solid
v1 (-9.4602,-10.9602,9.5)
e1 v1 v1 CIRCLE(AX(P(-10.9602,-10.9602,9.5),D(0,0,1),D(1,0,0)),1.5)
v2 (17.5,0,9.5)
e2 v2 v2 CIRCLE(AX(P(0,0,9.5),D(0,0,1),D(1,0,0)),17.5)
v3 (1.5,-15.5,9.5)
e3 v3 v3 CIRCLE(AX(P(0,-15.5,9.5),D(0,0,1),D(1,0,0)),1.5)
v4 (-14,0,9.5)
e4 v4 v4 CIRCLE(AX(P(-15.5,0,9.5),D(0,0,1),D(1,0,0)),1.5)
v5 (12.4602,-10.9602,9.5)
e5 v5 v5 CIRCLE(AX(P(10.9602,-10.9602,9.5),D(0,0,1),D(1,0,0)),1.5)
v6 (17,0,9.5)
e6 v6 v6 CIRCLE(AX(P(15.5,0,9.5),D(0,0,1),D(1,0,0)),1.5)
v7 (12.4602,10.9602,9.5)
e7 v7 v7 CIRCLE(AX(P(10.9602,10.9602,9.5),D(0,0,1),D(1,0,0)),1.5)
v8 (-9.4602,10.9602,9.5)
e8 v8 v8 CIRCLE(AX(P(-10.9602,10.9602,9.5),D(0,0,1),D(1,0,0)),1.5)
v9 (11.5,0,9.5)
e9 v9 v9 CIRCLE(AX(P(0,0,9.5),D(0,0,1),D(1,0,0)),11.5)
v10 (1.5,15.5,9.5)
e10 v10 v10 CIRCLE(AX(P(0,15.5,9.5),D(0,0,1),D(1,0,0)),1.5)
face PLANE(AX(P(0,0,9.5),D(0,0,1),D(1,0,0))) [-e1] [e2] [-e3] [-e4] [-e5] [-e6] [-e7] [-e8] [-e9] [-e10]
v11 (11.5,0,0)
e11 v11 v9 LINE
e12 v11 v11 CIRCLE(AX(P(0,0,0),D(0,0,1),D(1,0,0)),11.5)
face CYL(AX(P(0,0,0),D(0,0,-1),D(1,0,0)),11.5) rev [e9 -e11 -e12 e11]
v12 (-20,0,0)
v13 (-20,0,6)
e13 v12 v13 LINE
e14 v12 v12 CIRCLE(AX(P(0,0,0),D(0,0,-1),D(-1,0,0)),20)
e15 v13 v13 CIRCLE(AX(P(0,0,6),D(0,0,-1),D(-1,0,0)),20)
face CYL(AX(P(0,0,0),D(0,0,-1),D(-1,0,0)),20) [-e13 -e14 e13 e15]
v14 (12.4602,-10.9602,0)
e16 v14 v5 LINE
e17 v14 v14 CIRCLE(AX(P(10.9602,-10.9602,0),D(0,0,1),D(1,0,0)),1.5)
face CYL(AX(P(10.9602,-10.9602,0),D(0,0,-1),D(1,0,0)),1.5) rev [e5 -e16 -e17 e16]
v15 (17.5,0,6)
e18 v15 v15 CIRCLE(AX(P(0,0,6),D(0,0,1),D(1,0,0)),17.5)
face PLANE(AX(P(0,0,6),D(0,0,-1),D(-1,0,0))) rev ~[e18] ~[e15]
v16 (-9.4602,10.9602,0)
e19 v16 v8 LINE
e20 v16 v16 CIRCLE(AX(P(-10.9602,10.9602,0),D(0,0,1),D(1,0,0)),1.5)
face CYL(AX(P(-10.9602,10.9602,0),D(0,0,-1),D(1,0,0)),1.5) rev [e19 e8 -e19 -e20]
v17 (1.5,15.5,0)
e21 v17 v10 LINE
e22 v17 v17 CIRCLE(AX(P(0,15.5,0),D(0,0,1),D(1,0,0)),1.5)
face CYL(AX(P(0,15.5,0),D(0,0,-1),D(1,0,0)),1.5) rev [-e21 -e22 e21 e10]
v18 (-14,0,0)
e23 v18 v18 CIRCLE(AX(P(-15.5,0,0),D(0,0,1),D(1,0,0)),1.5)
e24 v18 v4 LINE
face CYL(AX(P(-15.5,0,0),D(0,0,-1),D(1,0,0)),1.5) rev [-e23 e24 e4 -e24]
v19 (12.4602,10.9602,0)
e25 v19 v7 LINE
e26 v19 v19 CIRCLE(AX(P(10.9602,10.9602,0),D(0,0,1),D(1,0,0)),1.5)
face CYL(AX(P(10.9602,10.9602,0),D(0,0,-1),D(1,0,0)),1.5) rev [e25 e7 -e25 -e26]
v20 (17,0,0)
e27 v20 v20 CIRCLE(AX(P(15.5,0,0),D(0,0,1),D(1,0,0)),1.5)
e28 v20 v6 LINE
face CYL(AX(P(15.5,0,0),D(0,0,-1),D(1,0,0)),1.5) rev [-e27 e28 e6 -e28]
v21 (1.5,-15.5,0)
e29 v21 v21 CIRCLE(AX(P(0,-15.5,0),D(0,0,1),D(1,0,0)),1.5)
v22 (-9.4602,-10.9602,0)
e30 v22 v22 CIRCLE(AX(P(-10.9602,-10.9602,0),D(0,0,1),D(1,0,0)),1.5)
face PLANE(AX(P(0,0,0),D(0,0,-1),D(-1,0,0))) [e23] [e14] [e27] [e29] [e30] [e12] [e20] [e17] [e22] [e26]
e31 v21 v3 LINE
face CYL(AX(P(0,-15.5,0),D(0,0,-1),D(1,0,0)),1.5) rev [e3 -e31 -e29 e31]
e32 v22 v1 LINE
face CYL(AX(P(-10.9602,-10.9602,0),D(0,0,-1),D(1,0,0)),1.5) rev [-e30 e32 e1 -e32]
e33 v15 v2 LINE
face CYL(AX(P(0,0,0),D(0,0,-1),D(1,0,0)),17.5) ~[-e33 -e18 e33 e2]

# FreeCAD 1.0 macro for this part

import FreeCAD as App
import Part
import Sketcher
from FreeCAD import Vector

doc = App.newDocument("Part")
params = doc.addObject("Spreadsheet::Sheet", "Params")
for row, (alias, value) in enumerate([
    ("sketch1_diameter", "35 mm"),
    ("sketch1_diameter2", "3 mm"),
    ("sketch1_diameter3", "23 mm"),
    ("pad1_length", "9.5 mm"),
    ("sketch2_diameter", "40 mm"),
    ("sketch2_diameter2", "35 mm"),
    ("pad2_length", "6 mm"),
], start=1):
    params.set(f"A{row}", alias)
    params.set(f"B{row}", "=" + value)
    params.setAlias(f"B{row}", alias)

body = doc.addObject("PartDesign::Body", "Body")

# Sketch on XY plane
sketch1 = body.newObject("Sketcher::SketchObject", "Sketch")
sketch1.AttachmentSupport = (doc.getObject("XY_Plane"), [""])
sketch1.MapMode = "FlatFace"
sketch1.addGeometry([
    Part.Circle(Vector(0, 0, 0), Vector(0, 0, 1), 17.5),  # 0
    Part.Circle(Vector(-11, -11, 0), Vector(0, 0, 1), 1.5),  # 1
    Part.Circle(Vector(0, -15.5, 0), Vector(0, 0, 1), 1.5),  # 2
    Part.Circle(Vector(11, -11, 0), Vector(0, 0, 1), 1.5),  # 3
    Part.Circle(Vector(-15.5, 0, 0), Vector(0, 0, 1), 1.5),  # 4
    Part.Circle(Vector(-11, 11, 0), Vector(0, 0, 1), 1.5),  # 5
    Part.Circle(Vector(0, 0, 0), Vector(0, 0, 1), 11.5),  # 6
    Part.Circle(Vector(15.5, 0, 0), Vector(0, 0, 1), 1.5),  # 7
    Part.Circle(Vector(0, 15.5, 0), Vector(0, 0, 1), 1.5),  # 8
    Part.Circle(Vector(11, 11, 0), Vector(0, 0, 1), 1.5),  # 9
], False)
sketch1.addConstraint([
    Sketcher.Constraint("Coincident", 0, 3, -1, 1),
    Sketcher.Constraint("Coincident", 6, 3, -1, 1),
    Sketcher.Constraint("Equal", 1, 2),
    Sketcher.Constraint("Equal", 2, 3),
    Sketcher.Constraint("Equal", 3, 4),
    Sketcher.Constraint("Equal", 4, 5),
    Sketcher.Constraint("Equal", 5, 7),
    Sketcher.Constraint("Equal", 7, 8),
    Sketcher.Constraint("Equal", 8, 9),
    Sketcher.Constraint("Symmetric", 3, 3, 5, 3, -1, 1),
    Sketcher.Constraint("Symmetric", 4, 3, 7, 3, -1, 1),
    Sketcher.Constraint("Symmetric", 2, 3, 8, 3, -1, 1),
    Sketcher.Constraint("Symmetric", 1, 3, 9, 3, -1, 1),
    Sketcher.Constraint("Symmetric", 1, 3, 3, 3, -2),
    Sketcher.Constraint("PointOnObject", 2, 3, -2),
    Sketcher.Constraint("PointOnObject", 4, 3, -1),
    Sketcher.Constraint("Diameter", 0, 35.0),
    Sketcher.Constraint("Diameter", 1, 3.0),
    Sketcher.Constraint("Diameter", 6, 23.0),
    Sketcher.Constraint("DistanceY", 2, 3, -1, 1, 15.5),
    Sketcher.Constraint("DistanceX", 4, 3, -1, 1, 15.5),
    Sketcher.Constraint("DistanceX", 1, 3, -1, 1, 10.9602),
    Sketcher.Constraint("DistanceY", 1, 3, -1, 1, 10.9602),
])
sketch1.setExpression("Constraints[16]", "Params.sketch1_diameter")
sketch1.setExpression("Constraints[17]", "Params.sketch1_diameter2")
sketch1.setExpression("Constraints[18]", "Params.sketch1_diameter3")
pad1 = body.newObject("PartDesign::Pad", "Pad")
pad1.Profile = sketch1
pad1.setExpression("Length", "Params.pad1_length")

# Sketch on XY plane
sketch2 = body.newObject("Sketcher::SketchObject", "Sketch001")
sketch2.AttachmentSupport = (doc.getObject("XY_Plane"), [""])
sketch2.MapMode = "FlatFace"
sketch2.addGeometry([
    Part.Circle(Vector(0, 0, 0), Vector(0, 0, 1), 20),
    Part.Circle(Vector(0, 0, 0), Vector(0, 0, 1), 18),
], False)
sketch2.addConstraint([
    Sketcher.Constraint("Coincident", 0, 3, -1, 1),
    Sketcher.Constraint("Coincident", 1, 3, -1, 1),
    Sketcher.Constraint("Diameter", 0, 40.0),
    Sketcher.Constraint("Diameter", 1, 35.0),
])
sketch2.setExpression("Constraints[2]", "Params.sketch2_diameter")
sketch2.setExpression("Constraints[3]", "Params.sketch2_diameter2")
pad2 = body.newObject("PartDesign::Pad", "Pad001")
pad2.Profile = sketch2
pad2.setExpression("Length", "Params.pad2_length")

doc.recompute()
